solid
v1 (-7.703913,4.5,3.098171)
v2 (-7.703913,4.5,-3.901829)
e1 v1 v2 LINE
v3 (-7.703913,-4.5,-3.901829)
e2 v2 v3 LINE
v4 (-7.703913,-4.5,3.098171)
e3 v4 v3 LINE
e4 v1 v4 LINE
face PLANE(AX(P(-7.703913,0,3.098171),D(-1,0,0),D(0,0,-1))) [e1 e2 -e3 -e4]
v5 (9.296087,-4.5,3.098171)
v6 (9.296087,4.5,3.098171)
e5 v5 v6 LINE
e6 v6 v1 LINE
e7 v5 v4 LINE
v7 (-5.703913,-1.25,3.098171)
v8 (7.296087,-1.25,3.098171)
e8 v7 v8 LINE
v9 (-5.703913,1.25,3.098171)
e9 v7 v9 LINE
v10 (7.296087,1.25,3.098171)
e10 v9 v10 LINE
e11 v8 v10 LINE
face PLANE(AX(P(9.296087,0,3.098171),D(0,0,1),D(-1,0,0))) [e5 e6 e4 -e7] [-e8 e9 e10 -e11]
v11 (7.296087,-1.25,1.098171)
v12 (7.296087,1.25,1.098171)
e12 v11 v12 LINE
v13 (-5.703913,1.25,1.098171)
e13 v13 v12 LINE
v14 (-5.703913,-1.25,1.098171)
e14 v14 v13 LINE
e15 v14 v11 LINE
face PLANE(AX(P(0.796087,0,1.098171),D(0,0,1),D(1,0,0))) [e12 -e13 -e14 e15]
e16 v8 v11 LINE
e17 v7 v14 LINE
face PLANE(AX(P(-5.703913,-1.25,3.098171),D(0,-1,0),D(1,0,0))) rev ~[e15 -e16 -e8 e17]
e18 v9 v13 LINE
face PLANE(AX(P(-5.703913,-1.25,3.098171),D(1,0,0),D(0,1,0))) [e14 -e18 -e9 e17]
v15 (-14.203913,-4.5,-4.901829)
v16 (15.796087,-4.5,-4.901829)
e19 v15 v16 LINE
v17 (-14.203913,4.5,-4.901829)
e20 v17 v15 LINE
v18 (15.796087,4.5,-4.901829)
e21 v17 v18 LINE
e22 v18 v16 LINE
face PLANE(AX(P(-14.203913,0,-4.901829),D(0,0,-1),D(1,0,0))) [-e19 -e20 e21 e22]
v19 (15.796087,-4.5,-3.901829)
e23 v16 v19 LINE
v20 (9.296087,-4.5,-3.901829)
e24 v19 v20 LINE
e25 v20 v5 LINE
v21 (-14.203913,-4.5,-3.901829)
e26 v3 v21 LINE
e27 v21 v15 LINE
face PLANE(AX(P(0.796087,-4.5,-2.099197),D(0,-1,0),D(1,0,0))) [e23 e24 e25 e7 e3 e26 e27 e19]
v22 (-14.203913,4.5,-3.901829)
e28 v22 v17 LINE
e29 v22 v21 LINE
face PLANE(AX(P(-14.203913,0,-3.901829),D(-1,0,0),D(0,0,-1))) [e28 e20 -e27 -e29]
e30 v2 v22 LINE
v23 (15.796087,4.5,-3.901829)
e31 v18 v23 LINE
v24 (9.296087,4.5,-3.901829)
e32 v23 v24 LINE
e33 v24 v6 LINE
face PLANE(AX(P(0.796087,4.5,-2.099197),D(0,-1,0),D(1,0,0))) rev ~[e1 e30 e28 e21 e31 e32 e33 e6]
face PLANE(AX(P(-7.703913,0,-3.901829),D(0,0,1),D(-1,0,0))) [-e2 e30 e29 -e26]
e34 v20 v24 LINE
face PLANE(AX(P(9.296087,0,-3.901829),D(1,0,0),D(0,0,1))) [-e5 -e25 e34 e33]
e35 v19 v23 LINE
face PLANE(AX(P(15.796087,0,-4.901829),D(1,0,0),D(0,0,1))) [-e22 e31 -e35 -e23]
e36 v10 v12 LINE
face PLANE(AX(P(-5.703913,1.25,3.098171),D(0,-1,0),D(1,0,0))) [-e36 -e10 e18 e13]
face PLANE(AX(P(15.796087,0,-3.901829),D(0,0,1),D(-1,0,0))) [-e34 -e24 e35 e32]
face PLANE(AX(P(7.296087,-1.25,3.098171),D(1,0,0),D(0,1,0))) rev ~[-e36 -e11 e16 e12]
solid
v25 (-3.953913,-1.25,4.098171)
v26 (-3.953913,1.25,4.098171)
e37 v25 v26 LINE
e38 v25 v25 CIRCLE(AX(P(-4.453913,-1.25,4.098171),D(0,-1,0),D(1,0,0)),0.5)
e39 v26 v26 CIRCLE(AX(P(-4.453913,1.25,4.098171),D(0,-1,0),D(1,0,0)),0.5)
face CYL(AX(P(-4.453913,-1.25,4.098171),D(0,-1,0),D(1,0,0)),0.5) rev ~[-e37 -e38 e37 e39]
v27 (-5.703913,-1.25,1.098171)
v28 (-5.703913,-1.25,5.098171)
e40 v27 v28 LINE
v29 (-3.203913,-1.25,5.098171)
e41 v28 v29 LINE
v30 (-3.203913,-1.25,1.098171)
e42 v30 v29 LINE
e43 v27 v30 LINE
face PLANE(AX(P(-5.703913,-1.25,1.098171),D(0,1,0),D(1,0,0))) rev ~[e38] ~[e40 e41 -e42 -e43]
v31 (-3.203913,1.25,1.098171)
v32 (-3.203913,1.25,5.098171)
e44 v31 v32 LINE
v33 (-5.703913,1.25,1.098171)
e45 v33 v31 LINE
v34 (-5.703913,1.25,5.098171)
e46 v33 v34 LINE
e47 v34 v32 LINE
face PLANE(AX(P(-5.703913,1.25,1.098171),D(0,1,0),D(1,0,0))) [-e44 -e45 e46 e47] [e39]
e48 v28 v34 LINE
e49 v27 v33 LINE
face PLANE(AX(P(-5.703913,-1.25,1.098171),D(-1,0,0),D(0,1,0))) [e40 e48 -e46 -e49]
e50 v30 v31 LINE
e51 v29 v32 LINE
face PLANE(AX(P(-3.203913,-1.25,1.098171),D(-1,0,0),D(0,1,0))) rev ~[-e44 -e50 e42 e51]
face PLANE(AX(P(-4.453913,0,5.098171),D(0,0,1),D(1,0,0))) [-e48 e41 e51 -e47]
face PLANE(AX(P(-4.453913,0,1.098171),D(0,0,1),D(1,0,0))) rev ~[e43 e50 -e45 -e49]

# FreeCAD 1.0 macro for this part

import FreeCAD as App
import Part
import Sketcher
from FreeCAD import Vector

doc = App.newDocument("Part")
body = doc.addObject("PartDesign::Body", "Body")

# Sketch on XZ plane
sketch1 = doc.addObject("Sketcher::SketchObject", "Sketch")
body.addObject(sketch1)
sketch1.AttachmentSupport = (doc.XZ_Plane, [""])
sketch1.MapMode = "FlatFace"
sketch1.addGeometry(Part.LineSegment(Vector(9.296087, 3.098171, 0), Vector(-7.703913, 3.098171, 0)), False)
sketch1.addGeometry(Part.LineSegment(Vector(-7.703913, 3.098171, 0), Vector(-7.703913, -3.901829, 0)), False)
sketch1.addGeometry(Part.LineSegment(Vector(-7.703913, -3.901829, 0), Vector(-14.203913, -3.901829, 0)), False)
sketch1.addGeometry(Part.LineSegment(Vector(-14.203913, -3.901829, 0), Vector(-14.203913, -4.901829, 0)), False)
sketch1.addGeometry(Part.LineSegment(Vector(-14.203913, -4.901829, 0), Vector(15.796087, -4.901829, 0)), False)
sketch1.addGeometry(Part.LineSegment(Vector(15.796087, -4.901829, 0), Vector(15.796087, -3.901829, 0)), False)
sketch1.addGeometry(Part.LineSegment(Vector(15.796087, -3.901829, 0), Vector(9.296087, -3.901829, 0)), False)
sketch1.addGeometry(Part.LineSegment(Vector(9.296087, -3.901829, 0), Vector(9.296087, 3.098171, 0)), False)
sketch1.addConstraint(Sketcher.Constraint("Coincident", 0, 2, 1, 1))
sketch1.addConstraint(Sketcher.Constraint("Coincident", 1, 2, 2, 1))
sketch1.addConstraint(Sketcher.Constraint("Coincident", 2, 2, 3, 1))
sketch1.addConstraint(Sketcher.Constraint("Coincident", 3, 2, 4, 1))
sketch1.addConstraint(Sketcher.Constraint("Coincident", 4, 2, 5, 1))
sketch1.addConstraint(Sketcher.Constraint("Coincident", 5, 2, 6, 1))
sketch1.addConstraint(Sketcher.Constraint("Coincident", 6, 2, 7, 1))
sketch1.addConstraint(Sketcher.Constraint("Coincident", 7, 2, 0, 1))
sketch1.addConstraint(Sketcher.Constraint("Horizontal", 0))
sketch1.addConstraint(Sketcher.Constraint("Vertical", 1))
sketch1.addConstraint(Sketcher.Constraint("Horizontal", 2))
sketch1.addConstraint(Sketcher.Constraint("Vertical", 3))
sketch1.addConstraint(Sketcher.Constraint("Horizontal", 4))
sketch1.addConstraint(Sketcher.Constraint("Vertical", 5))
sketch1.addConstraint(Sketcher.Constraint("Horizontal", 6))
sketch1.addConstraint(Sketcher.Constraint("Vertical", 7))
sketch1.addConstraint(Sketcher.Constraint("Horizontal", 2, 2, 5, 2))
sketch1.addConstraint(Sketcher.Constraint("Equal", 2, 6))
sketch1.addConstraint(Sketcher.Constraint("DistanceX", 0, 2, 0, 1, 17.0))
sketch1.addConstraint(Sketcher.Constraint("DistanceX", 4, 1, 4, 2, 30.0))
sketch1.addConstraint(Sketcher.Constraint("DistanceY", 1, 2, 1, 1, 7.0))
sketch1.addConstraint(Sketcher.Constraint("DistanceY", 3, 2, 3, 1, 1.0))
sketch1.addConstraint(Sketcher.Constraint("DistanceY", -1, 1, 0, 2, 3.098171))
sketch1.addConstraint(Sketcher.Constraint("DistanceX", 0, 2, -1, 1, 7.703913))
pad1 = doc.addObject("PartDesign::Pad", "Pad")
body.addObject(pad1)
pad1.Profile = sketch1
pad1.Length = 9
pad1.Midplane = True

# Sketch on XY plane
sketch2 = doc.addObject("Sketcher::SketchObject", "Sketch001")
body.addObject(sketch2)
sketch2.AttachmentSupport = (doc.XY_Plane, [""])
sketch2.MapMode = "FlatFace"
sketch2.AttachmentOffset = App.Placement(Vector(0, 0, 3.098171), App.Rotation())
sketch2.addGeometry(Part.LineSegment(Vector(-5.703913, 1.25, 0), Vector(-5.703913, -1.25, 0)), False)
sketch2.addGeometry(Part.LineSegment(Vector(-5.703913, -1.25, 0), Vector(7.296087, -1.25, 0)), False)
sketch2.addGeometry(Part.LineSegment(Vector(7.296087, -1.25, 0), Vector(7.296087, 1.25, 0)), False)
sketch2.addGeometry(Part.LineSegment(Vector(7.296087, 1.25, 0), Vector(-5.703913, 1.25, 0)), False)
sketch2.addConstraint(Sketcher.Constraint("Coincident", 0, 2, 1, 1))
sketch2.addConstraint(Sketcher.Constraint("Coincident", 1, 2, 2, 1))
sketch2.addConstraint(Sketcher.Constraint("Coincident", 2, 2, 3, 1))
sketch2.addConstraint(Sketcher.Constraint("Coincident", 3, 2, 0, 1))
sketch2.addConstraint(Sketcher.Constraint("Vertical", 0))
sketch2.addConstraint(Sketcher.Constraint("Horizontal", 1))
sketch2.addConstraint(Sketcher.Constraint("Vertical", 2))
sketch2.addConstraint(Sketcher.Constraint("Horizontal", 3))
sketch2.addConstraint(Sketcher.Constraint("DistanceX", 1, 1, 1, 2, 13.0))
sketch2.addConstraint(Sketcher.Constraint("DistanceY", 0, 2, 0, 1, 2.5))
sketch2.addConstraint(Sketcher.Constraint("DistanceY", 0, 2, -1, 1, 1.25))
sketch2.addConstraint(Sketcher.Constraint("DistanceX", 0, 2, -1, 1, 5.703913))
pocket1 = doc.addObject("PartDesign::Pocket", "Pocket")
body.addObject(pocket1)
pocket1.Profile = sketch2
pocket1.Length = 2
body2 = doc.addObject("PartDesign::Body", "Body001")

# Sketch on XY plane
sketch3 = doc.addObject("Sketcher::SketchObject", "Sketch002")
body2.addObject(sketch3)
sketch3.AttachmentSupport = (doc.getObject("XY_Plane001"), [""])
sketch3.MapMode = "FlatFace"
sketch3.AttachmentOffset = App.Placement(Vector(0, 0, 1.098171), App.Rotation())
sketch3.addGeometry(Part.LineSegment(Vector(-5.703913, 1.25, 0), Vector(-5.703913, -1.25, 0)), False)
sketch3.addGeometry(Part.LineSegment(Vector(-5.703913, -1.25, 0), Vector(-3.203913, -1.25, 0)), False)
sketch3.addGeometry(Part.LineSegment(Vector(-3.203913, -1.25, 0), Vector(-3.203913, 1.25, 0)), False)
sketch3.addGeometry(Part.LineSegment(Vector(-3.203913, 1.25, 0), Vector(-5.703913, 1.25, 0)), False)
sketch3.addConstraint(Sketcher.Constraint("Coincident", 0, 2, 1, 1))
sketch3.addConstraint(Sketcher.Constraint("Coincident", 1, 2, 2, 1))
sketch3.addConstraint(Sketcher.Constraint("Coincident", 2, 2, 3, 1))
sketch3.addConstraint(Sketcher.Constraint("Coincident", 3, 2, 0, 1))
sketch3.addConstraint(Sketcher.Constraint("Vertical", 0))
sketch3.addConstraint(Sketcher.Constraint("Horizontal", 1))
sketch3.addConstraint(Sketcher.Constraint("Vertical", 2))
sketch3.addConstraint(Sketcher.Constraint("Horizontal", 3))
sketch3.addConstraint(Sketcher.Constraint("Equal", 3, 0))
sketch3.addConstraint(Sketcher.Constraint("DistanceX", 1, 1, 1, 2, 2.5))
sketch3.addConstraint(Sketcher.Constraint("DistanceY", 0, 2, -1, 1, 1.25))
sketch3.addConstraint(Sketcher.Constraint("DistanceX", 0, 2, -1, 1, 5.703913))
pad2 = doc.addObject("PartDesign::Pad", "Pad001")
body2.addObject(pad2)
pad2.Profile = sketch3
pad2.Length = 4

# Sketch on XZ plane
sketch4 = doc.addObject("Sketcher::SketchObject", "Sketch003")
body2.addObject(sketch4)
sketch4.AttachmentSupport = (doc.getObject("XZ_Plane001"), [""])
sketch4.MapMode = "FlatFace"
sketch4.AttachmentOffset = App.Placement(Vector(0, 0, 1.25), App.Rotation())
sketch4.addGeometry(Part.Circle(Vector(-4.453913, 4.098171, 0), Vector(0, 0, 1), 0.5), False)
sketch4.addConstraint(Sketcher.Constraint("Diameter", 0, 1.0))
sketch4.addConstraint(Sketcher.Constraint("DistanceY", -1, 1, 0, 3, 4.098171))
sketch4.addConstraint(Sketcher.Constraint("DistanceX", 0, 3, -1, 1, 4.453913))
pocket2 = doc.addObject("PartDesign::Pocket", "Pocket001")
body2.addObject(pocket2)
pocket2.Profile = sketch4
pocket2.Type = "ThroughAll"

doc.recompute()
